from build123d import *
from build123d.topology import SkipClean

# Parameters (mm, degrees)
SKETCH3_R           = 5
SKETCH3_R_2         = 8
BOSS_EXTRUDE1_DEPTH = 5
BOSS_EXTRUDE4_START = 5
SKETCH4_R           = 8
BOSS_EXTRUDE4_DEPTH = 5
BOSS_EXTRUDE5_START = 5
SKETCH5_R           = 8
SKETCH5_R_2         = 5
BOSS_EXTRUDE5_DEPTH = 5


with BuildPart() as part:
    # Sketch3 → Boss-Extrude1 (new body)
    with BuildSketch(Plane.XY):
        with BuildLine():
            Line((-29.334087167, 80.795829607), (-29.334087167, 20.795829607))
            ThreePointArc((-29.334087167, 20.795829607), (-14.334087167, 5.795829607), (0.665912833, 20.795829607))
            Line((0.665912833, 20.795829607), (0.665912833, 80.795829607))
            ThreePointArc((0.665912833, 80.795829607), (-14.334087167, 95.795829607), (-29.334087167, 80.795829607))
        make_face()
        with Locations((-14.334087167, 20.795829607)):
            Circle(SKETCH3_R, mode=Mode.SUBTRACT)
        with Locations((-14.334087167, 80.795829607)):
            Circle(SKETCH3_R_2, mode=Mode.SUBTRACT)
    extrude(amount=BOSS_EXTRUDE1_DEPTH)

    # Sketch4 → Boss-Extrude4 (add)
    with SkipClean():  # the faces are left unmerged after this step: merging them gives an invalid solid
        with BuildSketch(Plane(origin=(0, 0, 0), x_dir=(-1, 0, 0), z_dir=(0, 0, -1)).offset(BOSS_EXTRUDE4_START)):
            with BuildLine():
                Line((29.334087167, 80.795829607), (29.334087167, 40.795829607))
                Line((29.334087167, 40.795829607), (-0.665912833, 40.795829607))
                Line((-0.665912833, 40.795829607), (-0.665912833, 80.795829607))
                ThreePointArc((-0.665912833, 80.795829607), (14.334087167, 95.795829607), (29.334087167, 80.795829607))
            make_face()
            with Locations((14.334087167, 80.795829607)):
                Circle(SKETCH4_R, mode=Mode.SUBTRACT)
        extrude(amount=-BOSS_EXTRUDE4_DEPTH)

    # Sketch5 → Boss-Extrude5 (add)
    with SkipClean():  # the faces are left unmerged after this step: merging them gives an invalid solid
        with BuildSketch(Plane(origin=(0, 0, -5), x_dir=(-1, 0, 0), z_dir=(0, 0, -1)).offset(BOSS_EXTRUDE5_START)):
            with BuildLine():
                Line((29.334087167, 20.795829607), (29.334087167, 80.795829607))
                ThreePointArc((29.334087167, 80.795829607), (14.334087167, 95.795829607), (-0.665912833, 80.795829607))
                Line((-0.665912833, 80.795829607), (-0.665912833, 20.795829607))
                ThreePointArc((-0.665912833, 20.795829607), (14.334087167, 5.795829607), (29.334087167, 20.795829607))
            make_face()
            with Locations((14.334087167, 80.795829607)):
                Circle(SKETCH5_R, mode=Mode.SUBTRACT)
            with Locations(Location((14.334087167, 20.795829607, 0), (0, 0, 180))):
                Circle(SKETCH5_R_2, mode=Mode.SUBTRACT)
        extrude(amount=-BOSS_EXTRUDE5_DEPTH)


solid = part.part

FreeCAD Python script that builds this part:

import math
import FreeCAD as App
import Part
import Sketcher

doc = App.newDocument("Part")
body = doc.addObject("PartDesign::Body", "Body")

# Sketch on XY plane
sketch1 = body.newObject("Sketcher::SketchObject", "Sketch")
sketch1.AttachmentSupport = (doc.getObject("XY_Plane"), [""])
sketch1.MapMode = "FlatFace"
sketch1.addGeometry([
    Part.LineSegment(App.Vector(-29, 81, 0), App.Vector(-29, 21, 0)),  # 0
    Part.ArcOfCircle(Part.Circle(App.Vector(-14, 21, 0), App.Vector(0, 0, 1), 15), math.radians(180), math.radians(360)),  # 1
    Part.LineSegment(App.Vector(1, 21, 0), App.Vector(1, 81, 0)),  # 2
    Part.ArcOfCircle(Part.Circle(App.Vector(-14, 81, 0), App.Vector(0, 0, 1), 15), math.radians(0), math.radians(180)),  # 3
    Part.Circle(App.Vector(-14, 21, 0), App.Vector(0, 0, 1), 5),  # 4
    Part.Circle(App.Vector(-14, 81, 0), App.Vector(0, 0, 1), 8),  # 5
], False)
sketch1.addConstraint([
    Sketcher.Constraint("Tangent", 0, 2, 1, 1),
    Sketcher.Constraint("Tangent", 1, 2, 2, 1),
    Sketcher.Constraint("Tangent", 2, 2, 3, 1),
    Sketcher.Constraint("Tangent", 3, 2, 0, 1),
    Sketcher.Constraint("Vertical", 0),
    Sketcher.Constraint("Vertical", 2),
    Sketcher.Constraint("Coincident", 4, 3, 1, 3),
    Sketcher.Constraint("Coincident", 5, 3, 3, 3),
    Sketcher.Constraint("Diameter", 4, 10.0),
    Sketcher.Constraint("Diameter", 5, 16.0),
    Sketcher.Constraint("Radius", 1, 15.0),
    Sketcher.Constraint("DistanceY", 0, 2, 0, 1, 60.0),
    Sketcher.Constraint("DistanceY", -1, 1, 1, 3, 20.79583),
    Sketcher.Constraint("DistanceX", 1, 3, -1, 1, 14.334087),
])
pad1 = body.newObject("PartDesign::Pad", "Pad")
pad1.Profile = sketch1
pad1.Length = 5

# Sketch on XY plane
sketch2 = body.newObject("Sketcher::SketchObject", "Sketch001")
sketch2.AttachmentSupport = (doc.getObject("XY_Plane"), [""])
sketch2.MapMode = "FlatFace"
sketch2.AttachmentOffset = App.Placement(App.Vector(0, 0, -5), App.Rotation())
sketch2.addGeometry([
    Part.LineSegment(App.Vector(-29, 41, 0), App.Vector(-29, 81, 0)),  # 0
    Part.ArcOfCircle(Part.Circle(App.Vector(-14, 81, 0), App.Vector(0, 0, 1), 15), math.radians(0), math.radians(180)),  # 1
    Part.LineSegment(App.Vector(1, 81, 0), App.Vector(1, 41, 0)),  # 2
    Part.LineSegment(App.Vector(1, 41, 0), App.Vector(-29, 41, 0)),  # 3
    Part.Circle(App.Vector(-14, 81, 0), App.Vector(0, 0, 1), 8),  # 4
], False)
sketch2.addConstraint([
    Sketcher.Constraint("Tangent", 0, 2, 1, 2),
    Sketcher.Constraint("Tangent", 1, 1, 2, 1),
    Sketcher.Constraint("Coincident", 2, 2, 3, 1),
    Sketcher.Constraint("Coincident", 3, 2, 0, 1),
    Sketcher.Constraint("Vertical", 0),
    Sketcher.Constraint("Vertical", 2),
    Sketcher.Constraint("Horizontal", 3),
    Sketcher.Constraint("Coincident", 4, 3, 1, 3),
    Sketcher.Constraint("Diameter", 4, 16.0),
    Sketcher.Constraint("Radius", 1, 15.0),
    Sketcher.Constraint("DistanceY", 0, 1, 0, 2, 40.0),
    Sketcher.Constraint("DistanceY", -1, 1, 1, 3, 80.79583),
    Sketcher.Constraint("DistanceX", 1, 3, -1, 1, 14.334087),
])
pad2 = body.newObject("PartDesign::Pad", "Pad001")
pad2.Profile = sketch2
pad2.Length = 5

# Sketch on XY plane
sketch3 = body.newObject("Sketcher::SketchObject", "Sketch002")
sketch3.AttachmentSupport = (doc.getObject("XY_Plane"), [""])
sketch3.MapMode = "FlatFace"
sketch3.AttachmentOffset = App.Placement(App.Vector(0, 0, -10), App.Rotation())
sketch3.addGeometry([
    Part.LineSegment(App.Vector(-29, 21, 0), App.Vector(-29, 81, 0)),  # 0
    Part.ArcOfCircle(Part.Circle(App.Vector(-14, 81, 0), App.Vector(0, 0, 1), 15), math.radians(0), math.radians(180)),  # 1
    Part.LineSegment(App.Vector(1, 81, 0), App.Vector(1, 21, 0)),  # 2
    Part.ArcOfCircle(Part.Circle(App.Vector(-14, 21, 0), App.Vector(0, 0, 1), 15), math.radians(180), math.radians(360)),  # 3
    Part.Circle(App.Vector(-14, 21, 0), App.Vector(0, 0, 1), 5),  # 4
    Part.Circle(App.Vector(-14, 81, 0), App.Vector(0, 0, 1), 8),  # 5
], False)
sketch3.addConstraint([
    Sketcher.Constraint("Tangent", 0, 2, 1, 2),
    Sketcher.Constraint("Tangent", 1, 1, 2, 1),
    Sketcher.Constraint("Tangent", 2, 2, 3, 2),
    Sketcher.Constraint("Tangent", 3, 1, 0, 1),
    Sketcher.Constraint("Vertical", 0),
    Sketcher.Constraint("Vertical", 2),
    Sketcher.Constraint("Coincident", 4, 3, 3, 3),
    Sketcher.Constraint("Coincident", 5, 3, 1, 3),
    Sketcher.Constraint("Diameter", 4, 10.0),
    Sketcher.Constraint("Diameter", 5, 16.0),
    Sketcher.Constraint("Radius", 1, 15.0),
    Sketcher.Constraint("DistanceY", 0, 1, 0, 2, 60.0),
    Sketcher.Constraint("DistanceY", -1, 1, 1, 3, 80.79583),
    Sketcher.Constraint("DistanceX", 1, 3, -1, 1, 14.334087),
])
pad3 = body.newObject("PartDesign::Pad", "Pad002")
pad3.Profile = sketch3
pad3.Length = 5

doc.recompute()
